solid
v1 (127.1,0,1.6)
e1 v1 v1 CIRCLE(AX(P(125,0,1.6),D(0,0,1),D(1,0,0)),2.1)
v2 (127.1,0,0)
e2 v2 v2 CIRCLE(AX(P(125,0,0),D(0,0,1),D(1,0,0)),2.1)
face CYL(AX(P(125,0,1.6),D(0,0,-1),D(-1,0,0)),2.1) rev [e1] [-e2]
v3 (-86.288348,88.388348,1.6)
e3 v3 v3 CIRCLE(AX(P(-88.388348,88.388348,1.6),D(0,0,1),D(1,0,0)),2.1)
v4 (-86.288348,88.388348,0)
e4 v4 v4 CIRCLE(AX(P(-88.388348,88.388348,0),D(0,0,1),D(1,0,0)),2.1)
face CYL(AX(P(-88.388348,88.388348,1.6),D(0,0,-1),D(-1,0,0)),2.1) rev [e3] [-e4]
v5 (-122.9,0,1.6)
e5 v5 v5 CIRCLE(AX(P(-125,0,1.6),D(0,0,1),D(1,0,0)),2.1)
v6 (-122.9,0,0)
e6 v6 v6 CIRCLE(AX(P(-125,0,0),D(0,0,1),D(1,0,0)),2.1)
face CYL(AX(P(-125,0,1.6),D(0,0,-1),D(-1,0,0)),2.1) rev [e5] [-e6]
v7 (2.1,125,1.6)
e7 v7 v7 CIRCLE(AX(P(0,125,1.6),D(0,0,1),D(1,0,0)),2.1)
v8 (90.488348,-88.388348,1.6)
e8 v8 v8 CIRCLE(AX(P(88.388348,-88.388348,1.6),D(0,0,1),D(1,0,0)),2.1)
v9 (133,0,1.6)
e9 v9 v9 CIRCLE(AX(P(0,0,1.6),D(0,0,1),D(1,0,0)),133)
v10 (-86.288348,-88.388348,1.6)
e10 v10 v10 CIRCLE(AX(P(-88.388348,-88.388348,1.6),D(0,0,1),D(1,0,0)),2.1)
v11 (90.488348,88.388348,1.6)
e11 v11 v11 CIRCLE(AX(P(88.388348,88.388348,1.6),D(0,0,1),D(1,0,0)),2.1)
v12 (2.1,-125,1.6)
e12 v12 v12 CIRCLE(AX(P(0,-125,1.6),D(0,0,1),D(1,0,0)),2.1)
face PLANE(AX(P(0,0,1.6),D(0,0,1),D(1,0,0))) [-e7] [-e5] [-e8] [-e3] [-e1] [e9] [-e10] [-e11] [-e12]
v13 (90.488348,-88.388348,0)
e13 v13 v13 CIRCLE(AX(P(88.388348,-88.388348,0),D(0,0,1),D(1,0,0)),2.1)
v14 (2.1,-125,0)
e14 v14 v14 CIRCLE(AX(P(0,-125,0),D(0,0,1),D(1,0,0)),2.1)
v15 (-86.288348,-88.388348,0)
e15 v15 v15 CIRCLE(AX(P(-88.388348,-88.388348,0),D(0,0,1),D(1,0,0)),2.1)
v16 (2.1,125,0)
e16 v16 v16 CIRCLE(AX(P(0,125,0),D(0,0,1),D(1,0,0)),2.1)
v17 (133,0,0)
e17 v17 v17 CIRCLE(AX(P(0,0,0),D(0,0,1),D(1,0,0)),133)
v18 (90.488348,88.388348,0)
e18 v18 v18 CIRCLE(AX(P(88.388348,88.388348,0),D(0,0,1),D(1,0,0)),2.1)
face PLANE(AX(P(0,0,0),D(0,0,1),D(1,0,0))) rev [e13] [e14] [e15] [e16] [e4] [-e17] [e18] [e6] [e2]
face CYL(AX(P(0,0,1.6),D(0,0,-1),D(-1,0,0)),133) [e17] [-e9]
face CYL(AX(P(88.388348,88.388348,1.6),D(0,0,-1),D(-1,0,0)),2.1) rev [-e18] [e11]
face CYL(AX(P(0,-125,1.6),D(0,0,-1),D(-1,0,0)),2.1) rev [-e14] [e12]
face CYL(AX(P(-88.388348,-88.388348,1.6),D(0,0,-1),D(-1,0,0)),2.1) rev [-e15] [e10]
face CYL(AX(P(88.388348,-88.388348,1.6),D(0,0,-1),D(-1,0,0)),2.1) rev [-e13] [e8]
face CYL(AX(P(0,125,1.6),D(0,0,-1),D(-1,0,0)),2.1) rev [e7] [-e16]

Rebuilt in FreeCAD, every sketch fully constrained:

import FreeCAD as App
import Part
import Sketcher

doc = App.newDocument("Part")
params = doc.addObject("Spreadsheet::Sheet", "Params")
for row, (alias, value) in enumerate([
    ("sketch1_diameter", "266 mm"),
    ("sketch1_diameter2", "4.2 mm"),
    ("pad1_length", "1.6 mm"),
], start=1):
    params.set(f"A{row}", alias)
    params.set(f"B{row}", "=" + value)
    params.setAlias(f"B{row}", alias)

body = doc.addObject("PartDesign::Body", "Body")

# Sketch on XY plane
sketch1 = body.newObject("Sketcher::SketchObject", "Sketch")
sketch1.AttachmentSupport = (doc.getObject("XY_Plane"), [""])
sketch1.MapMode = "FlatFace"
sketch1.addGeometry([
    Part.Circle(App.Vector(0, 0, 0), App.Vector(0, 0, 1), 133),  # 0
    Part.Circle(App.Vector(-88.4, -88.4, 0), App.Vector(0, 0, 1), 2.1),  # 1
    Part.Circle(App.Vector(0, -125, 0), App.Vector(0, 0, 1), 2.1),  # 2
    Part.Circle(App.Vector(88.4, -88.4, 0), App.Vector(0, 0, 1), 2.1),  # 3
    Part.Circle(App.Vector(-125, 0, 0), App.Vector(0, 0, 1), 2.1),  # 4
    Part.Circle(App.Vector(-88.4, 88.4, 0), App.Vector(0, 0, 1), 2.1),  # 5
    Part.Circle(App.Vector(125, 0, 0), App.Vector(0, 0, 1), 2.1),  # 6
    Part.Circle(App.Vector(0, 125, 0), App.Vector(0, 0, 1), 2.1),  # 7
    Part.Circle(App.Vector(88.4, 88.4, 0), App.Vector(0, 0, 1), 2.1),  # 8
], False)
sketch1.addConstraint([
    Sketcher.Constraint("Coincident", 0, 3, -1, 1),
    Sketcher.Constraint("Equal", 1, 2),
    Sketcher.Constraint("Equal", 2, 3),
    Sketcher.Constraint("Equal", 3, 4),
    Sketcher.Constraint("Equal", 4, 5),
    Sketcher.Constraint("Equal", 5, 6),
    Sketcher.Constraint("Equal", 6, 7),
    Sketcher.Constraint("Equal", 7, 8),
    Sketcher.Constraint("Symmetric", 3, 3, 5, 3, -1, 1),
    Sketcher.Constraint("Symmetric", 4, 3, 6, 3, -1, 1),
    Sketcher.Constraint("Symmetric", 2, 3, 7, 3, -1, 1),
    Sketcher.Constraint("Symmetric", 1, 3, 8, 3, -1, 1),
    Sketcher.Constraint("Symmetric", 1, 3, 3, 3, -2),
    Sketcher.Constraint("PointOnObject", 2, 3, -2),
    Sketcher.Constraint("PointOnObject", 4, 3, -1),
    Sketcher.Constraint("Diameter", 0, 266.0),
    Sketcher.Constraint("Diameter", 1, 4.2),
    Sketcher.Constraint("DistanceY", 2, 3, -1, 1, 125.0),
    Sketcher.Constraint("DistanceX", 4, 3, -1, 1, 125.0),
    Sketcher.Constraint("DistanceX", 1, 3, -1, 1, 88.388348),
    Sketcher.Constraint("DistanceY", 1, 3, -1, 1, 88.388348),
])
sketch1.setExpression("Constraints[15]", "Params.sketch1_diameter")
sketch1.setExpression("Constraints[16]", "Params.sketch1_diameter2")
pad1 = body.newObject("PartDesign::Pad", "Pad")
pad1.Profile = sketch1
pad1.setExpression("Length", "Params.pad1_length")

doc.recompute()
